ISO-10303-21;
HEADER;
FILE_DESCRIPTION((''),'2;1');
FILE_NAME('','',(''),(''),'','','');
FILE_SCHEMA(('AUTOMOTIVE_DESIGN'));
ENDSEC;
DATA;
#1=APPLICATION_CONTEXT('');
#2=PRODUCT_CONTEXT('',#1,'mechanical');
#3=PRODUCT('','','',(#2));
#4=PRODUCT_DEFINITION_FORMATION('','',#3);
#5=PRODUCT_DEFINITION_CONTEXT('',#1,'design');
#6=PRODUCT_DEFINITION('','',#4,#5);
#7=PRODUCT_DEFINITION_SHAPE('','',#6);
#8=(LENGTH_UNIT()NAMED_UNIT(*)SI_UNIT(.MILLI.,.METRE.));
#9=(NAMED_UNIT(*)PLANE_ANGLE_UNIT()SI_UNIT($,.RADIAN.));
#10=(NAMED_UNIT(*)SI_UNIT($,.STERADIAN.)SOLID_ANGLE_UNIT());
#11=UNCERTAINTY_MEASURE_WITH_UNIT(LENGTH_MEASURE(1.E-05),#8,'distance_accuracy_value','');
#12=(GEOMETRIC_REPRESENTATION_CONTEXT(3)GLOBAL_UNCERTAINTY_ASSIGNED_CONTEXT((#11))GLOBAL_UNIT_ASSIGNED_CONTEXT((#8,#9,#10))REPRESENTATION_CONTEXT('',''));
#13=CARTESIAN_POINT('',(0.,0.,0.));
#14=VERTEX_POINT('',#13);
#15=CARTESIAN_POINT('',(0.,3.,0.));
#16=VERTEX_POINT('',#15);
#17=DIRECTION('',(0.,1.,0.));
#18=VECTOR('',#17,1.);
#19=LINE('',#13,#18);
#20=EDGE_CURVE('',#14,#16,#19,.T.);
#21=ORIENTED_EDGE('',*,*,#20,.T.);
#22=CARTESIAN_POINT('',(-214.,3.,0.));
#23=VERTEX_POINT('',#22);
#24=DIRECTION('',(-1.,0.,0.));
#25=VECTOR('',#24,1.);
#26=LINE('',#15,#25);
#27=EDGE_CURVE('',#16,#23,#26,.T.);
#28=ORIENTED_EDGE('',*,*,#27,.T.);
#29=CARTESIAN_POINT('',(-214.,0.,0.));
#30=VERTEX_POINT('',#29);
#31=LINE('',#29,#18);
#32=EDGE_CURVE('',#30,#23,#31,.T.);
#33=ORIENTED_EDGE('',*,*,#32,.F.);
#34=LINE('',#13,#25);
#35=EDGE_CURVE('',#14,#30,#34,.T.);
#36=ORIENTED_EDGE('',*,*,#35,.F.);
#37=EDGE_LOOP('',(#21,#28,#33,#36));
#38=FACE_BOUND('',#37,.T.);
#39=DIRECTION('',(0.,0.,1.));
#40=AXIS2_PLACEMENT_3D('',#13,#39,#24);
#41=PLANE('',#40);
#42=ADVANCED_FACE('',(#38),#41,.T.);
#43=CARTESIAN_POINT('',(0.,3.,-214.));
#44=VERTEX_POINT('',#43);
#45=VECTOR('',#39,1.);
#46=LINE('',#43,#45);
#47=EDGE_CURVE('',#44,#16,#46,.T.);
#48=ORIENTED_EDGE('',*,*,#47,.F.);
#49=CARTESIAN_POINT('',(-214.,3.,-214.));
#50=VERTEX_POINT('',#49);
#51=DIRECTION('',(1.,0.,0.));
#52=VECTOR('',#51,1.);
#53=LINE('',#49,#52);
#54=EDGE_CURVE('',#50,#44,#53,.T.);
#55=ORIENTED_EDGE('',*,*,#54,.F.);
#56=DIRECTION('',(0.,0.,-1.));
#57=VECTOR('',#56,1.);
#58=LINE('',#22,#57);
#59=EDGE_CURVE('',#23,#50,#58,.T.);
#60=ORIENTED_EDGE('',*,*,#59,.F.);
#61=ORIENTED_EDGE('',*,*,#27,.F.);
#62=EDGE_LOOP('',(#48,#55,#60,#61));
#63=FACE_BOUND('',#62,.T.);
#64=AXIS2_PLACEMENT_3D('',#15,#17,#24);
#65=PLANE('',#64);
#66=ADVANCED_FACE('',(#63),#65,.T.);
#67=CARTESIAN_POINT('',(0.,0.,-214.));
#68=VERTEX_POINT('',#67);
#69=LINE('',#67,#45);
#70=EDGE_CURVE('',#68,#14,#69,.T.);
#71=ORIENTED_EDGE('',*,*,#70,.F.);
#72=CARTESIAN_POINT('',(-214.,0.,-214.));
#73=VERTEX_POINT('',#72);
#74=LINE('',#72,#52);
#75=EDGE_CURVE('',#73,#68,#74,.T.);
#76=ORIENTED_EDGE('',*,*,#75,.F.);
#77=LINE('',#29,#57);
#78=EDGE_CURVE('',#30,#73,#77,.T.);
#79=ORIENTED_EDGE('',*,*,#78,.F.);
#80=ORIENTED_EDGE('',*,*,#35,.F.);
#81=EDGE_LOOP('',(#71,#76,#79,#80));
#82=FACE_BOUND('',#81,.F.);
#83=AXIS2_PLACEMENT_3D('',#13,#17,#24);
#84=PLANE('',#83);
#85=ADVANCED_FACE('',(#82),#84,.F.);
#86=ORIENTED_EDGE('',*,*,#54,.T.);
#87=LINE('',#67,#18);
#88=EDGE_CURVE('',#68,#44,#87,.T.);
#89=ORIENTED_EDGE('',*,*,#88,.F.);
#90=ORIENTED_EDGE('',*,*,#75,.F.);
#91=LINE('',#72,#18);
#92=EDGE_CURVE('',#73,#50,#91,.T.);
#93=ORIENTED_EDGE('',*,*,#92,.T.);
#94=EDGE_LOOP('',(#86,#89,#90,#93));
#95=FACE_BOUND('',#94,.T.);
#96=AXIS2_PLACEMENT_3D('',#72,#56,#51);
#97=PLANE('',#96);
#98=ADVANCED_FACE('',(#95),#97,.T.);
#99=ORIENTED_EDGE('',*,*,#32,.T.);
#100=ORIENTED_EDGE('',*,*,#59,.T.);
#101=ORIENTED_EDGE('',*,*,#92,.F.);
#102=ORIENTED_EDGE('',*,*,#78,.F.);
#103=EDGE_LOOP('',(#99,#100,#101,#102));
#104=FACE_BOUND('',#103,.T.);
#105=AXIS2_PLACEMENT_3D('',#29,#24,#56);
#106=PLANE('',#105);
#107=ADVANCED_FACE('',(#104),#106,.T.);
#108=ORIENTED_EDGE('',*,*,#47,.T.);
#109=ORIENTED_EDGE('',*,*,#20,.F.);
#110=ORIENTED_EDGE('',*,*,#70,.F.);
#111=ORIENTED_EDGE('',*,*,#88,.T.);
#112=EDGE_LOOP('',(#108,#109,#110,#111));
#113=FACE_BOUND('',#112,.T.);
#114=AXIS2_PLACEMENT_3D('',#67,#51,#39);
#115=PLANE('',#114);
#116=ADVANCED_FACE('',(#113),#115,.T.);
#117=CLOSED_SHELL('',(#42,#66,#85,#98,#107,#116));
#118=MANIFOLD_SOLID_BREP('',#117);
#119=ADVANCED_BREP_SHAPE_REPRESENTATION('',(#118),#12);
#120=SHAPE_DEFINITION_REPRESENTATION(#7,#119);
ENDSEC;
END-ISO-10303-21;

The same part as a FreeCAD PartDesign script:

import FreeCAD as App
import Part
import Sketcher

V = App.Vector

doc = App.newDocument("Part")
body = doc.addObject("PartDesign::Body", "Body")

# Sketch on XZ plane
sketch1 = body.newObject("Sketcher::SketchObject", "Sketch")
sketch1.AttachmentSupport = (doc.getObject("XZ_Plane"), [""])
sketch1.MapMode = "FlatFace"
sketch1.addGeometry(Part.LineSegment(V(-214, 0, 0), V(0, 0, 0)), False)
sketch1.addGeometry(Part.LineSegment(V(0, 0, 0), V(0, -214, 0)), False)
sketch1.addGeometry(Part.LineSegment(V(0, -214, 0), V(-214, -214, 0)), False)
sketch1.addGeometry(Part.LineSegment(V(-214, -214, 0), V(-214, 0, 0)), False)
sketch1.addConstraint(Sketcher.Constraint("Coincident", 0, 2, 1, 1))
sketch1.addConstraint(Sketcher.Constraint("Coincident", 1, 2, 2, 1))
sketch1.addConstraint(Sketcher.Constraint("Coincident", 2, 2, 3, 1))
sketch1.addConstraint(Sketcher.Constraint("Coincident", 3, 2, 0, 1))
sketch1.addConstraint(Sketcher.Constraint("Horizontal", 0))
sketch1.addConstraint(Sketcher.Constraint("Vertical", 1))
sketch1.addConstraint(Sketcher.Constraint("Horizontal", 2))
sketch1.addConstraint(Sketcher.Constraint("Vertical", 3))
sketch1.addConstraint(Sketcher.Constraint("Coincident", 0, 2, -1, 1))
sketch1.addConstraint(Sketcher.Constraint("Equal", 2, 1))
sketch1.addConstraint(Sketcher.Constraint("DistanceX", 0, 1, 0, 2, 214.0))
pad1 = body.newObject("PartDesign::Pad", "Pad")
pad1.Profile = sketch1
pad1.Length = 3
pad1.Reversed = True

doc.recompute()
